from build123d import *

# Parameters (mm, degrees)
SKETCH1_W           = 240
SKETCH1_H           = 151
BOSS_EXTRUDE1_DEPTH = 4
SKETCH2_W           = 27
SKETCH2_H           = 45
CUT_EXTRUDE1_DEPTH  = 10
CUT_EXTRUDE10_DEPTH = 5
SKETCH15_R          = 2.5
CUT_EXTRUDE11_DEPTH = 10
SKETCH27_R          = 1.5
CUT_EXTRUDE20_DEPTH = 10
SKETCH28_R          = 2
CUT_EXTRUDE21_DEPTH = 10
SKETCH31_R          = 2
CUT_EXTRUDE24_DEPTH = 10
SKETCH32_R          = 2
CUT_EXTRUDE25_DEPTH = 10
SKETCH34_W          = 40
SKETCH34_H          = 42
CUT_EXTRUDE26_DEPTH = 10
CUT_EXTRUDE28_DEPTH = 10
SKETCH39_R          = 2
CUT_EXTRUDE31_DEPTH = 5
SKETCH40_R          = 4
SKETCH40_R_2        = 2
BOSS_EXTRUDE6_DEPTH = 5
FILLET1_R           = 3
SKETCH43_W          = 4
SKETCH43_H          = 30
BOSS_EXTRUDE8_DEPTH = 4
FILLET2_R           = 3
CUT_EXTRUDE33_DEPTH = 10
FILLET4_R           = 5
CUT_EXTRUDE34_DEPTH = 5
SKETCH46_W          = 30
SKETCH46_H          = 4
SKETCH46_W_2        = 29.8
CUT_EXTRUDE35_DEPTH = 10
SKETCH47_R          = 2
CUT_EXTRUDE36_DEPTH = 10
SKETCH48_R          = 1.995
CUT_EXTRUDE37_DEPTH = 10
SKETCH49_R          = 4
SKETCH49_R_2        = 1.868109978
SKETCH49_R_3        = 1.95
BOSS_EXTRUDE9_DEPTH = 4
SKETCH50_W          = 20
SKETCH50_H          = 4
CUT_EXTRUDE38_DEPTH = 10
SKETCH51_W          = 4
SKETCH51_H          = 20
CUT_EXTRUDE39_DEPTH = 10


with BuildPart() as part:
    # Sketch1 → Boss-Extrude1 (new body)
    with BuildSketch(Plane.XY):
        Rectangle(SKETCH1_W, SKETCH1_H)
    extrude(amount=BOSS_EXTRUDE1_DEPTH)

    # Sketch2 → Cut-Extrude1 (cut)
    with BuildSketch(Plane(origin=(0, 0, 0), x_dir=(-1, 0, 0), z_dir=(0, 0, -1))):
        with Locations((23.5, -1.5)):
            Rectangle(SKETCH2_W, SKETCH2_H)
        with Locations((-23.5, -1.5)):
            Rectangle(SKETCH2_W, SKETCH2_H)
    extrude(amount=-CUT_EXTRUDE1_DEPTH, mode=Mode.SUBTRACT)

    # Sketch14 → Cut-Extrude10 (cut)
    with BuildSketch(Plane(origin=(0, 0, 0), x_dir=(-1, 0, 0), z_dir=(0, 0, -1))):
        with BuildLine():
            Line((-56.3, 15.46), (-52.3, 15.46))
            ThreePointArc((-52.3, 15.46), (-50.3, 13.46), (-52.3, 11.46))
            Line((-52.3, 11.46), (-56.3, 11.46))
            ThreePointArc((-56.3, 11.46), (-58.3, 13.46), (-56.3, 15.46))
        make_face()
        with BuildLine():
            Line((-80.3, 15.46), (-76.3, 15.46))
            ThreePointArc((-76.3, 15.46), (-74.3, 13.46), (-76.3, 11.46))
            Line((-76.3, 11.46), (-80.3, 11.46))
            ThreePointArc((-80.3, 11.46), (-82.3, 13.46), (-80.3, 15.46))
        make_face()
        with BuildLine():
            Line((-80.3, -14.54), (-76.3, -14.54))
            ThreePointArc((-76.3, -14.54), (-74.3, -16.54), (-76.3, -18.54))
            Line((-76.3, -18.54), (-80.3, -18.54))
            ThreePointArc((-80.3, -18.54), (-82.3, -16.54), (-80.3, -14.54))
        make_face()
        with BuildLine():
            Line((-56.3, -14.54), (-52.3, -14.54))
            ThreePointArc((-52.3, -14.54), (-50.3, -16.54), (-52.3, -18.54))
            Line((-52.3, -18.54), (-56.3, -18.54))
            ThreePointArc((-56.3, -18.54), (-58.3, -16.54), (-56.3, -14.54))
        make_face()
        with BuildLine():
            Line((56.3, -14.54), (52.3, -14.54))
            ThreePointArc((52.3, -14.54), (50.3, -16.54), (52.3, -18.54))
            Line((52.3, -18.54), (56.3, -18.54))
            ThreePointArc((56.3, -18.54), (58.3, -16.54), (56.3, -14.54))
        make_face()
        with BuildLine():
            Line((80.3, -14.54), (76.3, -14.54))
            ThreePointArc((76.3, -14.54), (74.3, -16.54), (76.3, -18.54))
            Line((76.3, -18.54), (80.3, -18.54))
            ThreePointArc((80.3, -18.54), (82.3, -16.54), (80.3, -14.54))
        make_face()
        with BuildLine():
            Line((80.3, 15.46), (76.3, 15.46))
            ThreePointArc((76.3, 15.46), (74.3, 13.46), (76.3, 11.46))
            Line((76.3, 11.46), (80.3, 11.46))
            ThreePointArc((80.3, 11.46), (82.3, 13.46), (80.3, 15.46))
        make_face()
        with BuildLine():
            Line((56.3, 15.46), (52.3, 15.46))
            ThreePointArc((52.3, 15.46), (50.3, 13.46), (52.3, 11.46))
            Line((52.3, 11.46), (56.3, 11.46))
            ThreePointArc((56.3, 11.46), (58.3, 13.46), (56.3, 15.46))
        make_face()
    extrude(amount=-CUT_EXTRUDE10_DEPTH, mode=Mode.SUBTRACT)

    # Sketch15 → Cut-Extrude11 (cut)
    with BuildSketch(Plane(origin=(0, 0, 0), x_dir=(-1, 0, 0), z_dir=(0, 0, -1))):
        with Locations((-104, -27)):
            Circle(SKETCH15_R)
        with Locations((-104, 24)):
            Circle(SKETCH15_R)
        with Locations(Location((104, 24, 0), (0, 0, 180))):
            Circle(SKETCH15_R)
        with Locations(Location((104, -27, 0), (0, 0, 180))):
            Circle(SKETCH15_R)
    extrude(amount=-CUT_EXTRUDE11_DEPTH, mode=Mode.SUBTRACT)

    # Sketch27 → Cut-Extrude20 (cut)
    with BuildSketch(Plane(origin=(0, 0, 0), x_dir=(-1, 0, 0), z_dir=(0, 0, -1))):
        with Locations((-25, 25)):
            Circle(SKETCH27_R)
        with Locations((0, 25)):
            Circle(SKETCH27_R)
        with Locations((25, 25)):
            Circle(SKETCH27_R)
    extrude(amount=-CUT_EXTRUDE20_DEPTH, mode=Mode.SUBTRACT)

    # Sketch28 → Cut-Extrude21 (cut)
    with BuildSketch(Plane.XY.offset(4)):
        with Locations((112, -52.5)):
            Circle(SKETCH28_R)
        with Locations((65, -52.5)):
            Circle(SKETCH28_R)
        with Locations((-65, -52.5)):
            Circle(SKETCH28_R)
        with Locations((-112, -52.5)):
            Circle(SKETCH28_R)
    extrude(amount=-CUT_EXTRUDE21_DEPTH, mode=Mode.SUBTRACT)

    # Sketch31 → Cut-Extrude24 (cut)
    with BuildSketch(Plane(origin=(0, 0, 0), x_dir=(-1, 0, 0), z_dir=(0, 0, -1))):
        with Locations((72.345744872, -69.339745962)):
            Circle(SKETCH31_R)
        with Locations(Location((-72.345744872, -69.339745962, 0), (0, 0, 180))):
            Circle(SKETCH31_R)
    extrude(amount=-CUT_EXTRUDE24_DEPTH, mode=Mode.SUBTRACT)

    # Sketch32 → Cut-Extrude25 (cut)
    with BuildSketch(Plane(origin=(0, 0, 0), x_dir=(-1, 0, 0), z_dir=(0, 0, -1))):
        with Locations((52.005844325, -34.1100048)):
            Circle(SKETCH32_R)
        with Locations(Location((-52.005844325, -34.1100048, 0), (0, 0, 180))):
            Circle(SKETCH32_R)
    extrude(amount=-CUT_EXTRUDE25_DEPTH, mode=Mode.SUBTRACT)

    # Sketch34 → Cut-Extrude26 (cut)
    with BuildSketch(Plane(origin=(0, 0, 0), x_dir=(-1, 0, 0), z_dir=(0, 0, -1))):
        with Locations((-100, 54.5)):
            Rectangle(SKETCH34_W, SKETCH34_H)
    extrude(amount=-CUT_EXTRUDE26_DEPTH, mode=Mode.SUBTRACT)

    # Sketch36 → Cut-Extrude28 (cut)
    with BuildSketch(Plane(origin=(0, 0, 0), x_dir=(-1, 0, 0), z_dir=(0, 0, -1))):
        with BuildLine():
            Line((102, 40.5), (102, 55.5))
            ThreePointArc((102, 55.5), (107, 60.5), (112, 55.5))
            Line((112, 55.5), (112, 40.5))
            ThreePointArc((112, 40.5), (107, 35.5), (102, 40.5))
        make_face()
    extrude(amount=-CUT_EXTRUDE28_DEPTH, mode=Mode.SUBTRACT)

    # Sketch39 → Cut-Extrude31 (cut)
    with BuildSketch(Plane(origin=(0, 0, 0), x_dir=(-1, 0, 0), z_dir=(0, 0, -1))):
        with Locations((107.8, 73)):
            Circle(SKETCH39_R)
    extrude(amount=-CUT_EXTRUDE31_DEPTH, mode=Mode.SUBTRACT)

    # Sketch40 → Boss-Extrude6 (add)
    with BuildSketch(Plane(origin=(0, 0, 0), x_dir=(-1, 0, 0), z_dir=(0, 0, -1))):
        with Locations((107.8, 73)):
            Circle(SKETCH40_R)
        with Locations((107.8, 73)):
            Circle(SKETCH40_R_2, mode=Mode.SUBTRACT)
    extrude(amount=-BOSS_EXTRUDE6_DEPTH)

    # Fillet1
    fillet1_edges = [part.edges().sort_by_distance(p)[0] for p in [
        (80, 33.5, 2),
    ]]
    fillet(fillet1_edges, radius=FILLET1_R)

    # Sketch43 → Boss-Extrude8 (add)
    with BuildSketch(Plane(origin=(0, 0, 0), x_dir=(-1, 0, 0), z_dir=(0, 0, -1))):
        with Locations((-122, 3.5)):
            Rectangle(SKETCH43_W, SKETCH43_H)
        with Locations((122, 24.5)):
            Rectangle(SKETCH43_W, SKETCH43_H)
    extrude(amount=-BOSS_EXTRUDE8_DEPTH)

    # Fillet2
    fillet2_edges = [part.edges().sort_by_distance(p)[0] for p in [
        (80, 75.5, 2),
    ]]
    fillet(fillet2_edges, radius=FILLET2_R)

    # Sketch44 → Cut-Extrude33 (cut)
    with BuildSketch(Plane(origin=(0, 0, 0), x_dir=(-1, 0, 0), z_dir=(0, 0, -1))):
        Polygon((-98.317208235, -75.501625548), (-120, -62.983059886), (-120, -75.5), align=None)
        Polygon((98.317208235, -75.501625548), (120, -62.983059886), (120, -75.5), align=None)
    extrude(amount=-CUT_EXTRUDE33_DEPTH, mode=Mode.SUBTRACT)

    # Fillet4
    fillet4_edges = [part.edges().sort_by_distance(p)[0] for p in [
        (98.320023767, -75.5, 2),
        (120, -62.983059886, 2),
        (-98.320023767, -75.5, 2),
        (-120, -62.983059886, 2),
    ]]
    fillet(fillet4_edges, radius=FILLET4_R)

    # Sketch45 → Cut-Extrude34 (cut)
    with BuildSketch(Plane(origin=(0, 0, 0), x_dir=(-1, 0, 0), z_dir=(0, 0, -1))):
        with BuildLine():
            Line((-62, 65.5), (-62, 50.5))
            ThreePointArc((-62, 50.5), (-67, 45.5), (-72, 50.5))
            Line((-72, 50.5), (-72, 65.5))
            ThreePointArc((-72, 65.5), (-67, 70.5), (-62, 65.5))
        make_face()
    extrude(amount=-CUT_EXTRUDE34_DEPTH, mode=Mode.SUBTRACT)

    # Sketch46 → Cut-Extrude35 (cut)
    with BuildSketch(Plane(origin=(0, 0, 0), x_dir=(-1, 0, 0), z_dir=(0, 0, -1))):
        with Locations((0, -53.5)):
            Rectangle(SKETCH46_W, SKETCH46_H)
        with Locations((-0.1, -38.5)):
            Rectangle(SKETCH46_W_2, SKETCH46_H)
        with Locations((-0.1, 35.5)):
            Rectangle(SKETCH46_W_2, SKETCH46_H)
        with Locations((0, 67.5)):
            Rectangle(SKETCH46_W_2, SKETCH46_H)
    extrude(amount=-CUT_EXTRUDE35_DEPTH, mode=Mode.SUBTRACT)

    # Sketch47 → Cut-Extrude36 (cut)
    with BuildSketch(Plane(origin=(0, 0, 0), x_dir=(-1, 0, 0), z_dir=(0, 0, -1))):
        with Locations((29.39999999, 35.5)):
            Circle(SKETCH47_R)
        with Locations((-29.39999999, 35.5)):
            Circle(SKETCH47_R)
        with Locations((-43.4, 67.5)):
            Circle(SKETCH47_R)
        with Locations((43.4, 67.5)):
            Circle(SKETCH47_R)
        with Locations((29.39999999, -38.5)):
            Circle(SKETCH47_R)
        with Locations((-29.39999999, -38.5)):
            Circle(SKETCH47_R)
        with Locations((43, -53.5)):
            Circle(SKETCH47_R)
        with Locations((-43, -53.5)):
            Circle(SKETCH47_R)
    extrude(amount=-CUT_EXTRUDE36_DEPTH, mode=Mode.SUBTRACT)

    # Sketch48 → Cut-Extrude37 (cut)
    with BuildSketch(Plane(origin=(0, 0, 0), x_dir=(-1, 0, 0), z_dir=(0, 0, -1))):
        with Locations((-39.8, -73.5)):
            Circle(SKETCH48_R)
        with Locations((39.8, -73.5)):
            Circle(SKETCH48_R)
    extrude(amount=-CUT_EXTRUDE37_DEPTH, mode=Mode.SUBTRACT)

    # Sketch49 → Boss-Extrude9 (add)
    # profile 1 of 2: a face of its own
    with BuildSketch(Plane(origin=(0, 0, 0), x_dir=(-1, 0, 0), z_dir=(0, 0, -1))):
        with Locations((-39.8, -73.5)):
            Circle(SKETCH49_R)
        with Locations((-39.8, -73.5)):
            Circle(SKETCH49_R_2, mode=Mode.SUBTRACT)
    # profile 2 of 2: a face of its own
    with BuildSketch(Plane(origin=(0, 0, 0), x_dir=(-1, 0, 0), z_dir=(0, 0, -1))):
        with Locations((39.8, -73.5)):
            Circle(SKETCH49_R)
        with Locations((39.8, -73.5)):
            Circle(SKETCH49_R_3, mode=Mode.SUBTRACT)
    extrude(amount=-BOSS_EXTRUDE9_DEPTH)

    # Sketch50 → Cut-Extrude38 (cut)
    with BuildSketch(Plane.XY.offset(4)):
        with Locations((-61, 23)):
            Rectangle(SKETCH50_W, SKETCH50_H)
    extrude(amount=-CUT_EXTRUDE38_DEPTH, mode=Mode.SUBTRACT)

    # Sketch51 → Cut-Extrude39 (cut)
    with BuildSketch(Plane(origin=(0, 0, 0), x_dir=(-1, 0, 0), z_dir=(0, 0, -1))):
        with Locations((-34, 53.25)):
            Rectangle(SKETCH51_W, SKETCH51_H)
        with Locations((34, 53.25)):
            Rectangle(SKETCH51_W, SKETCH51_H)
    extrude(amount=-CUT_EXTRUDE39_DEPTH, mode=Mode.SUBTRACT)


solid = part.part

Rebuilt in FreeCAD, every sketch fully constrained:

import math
import FreeCAD as App
import Part
import Sketcher
Q = App.Units.Quantity


def edges_at(feature, points):
    """Names of the edges that pass closest to the given points."""
    edges = feature.Shape.Edges
    near = lambda p: min(range(len(edges)), key=lambda i: edges[i].distToShape(Part.Vertex(*p))[0])
    return sorted({f"Edge{near(p) + 1}" for p in points})


def add_polygon(sketch, points):
    """Adds a closed chain of lines whose ends are joined by coincident constraints."""
    first, n = sketch.GeometryCount, len(points)
    for a, b in zip(points, points[1:] + points[:1]):
        sketch.addGeometry(Part.LineSegment(App.Vector(*a, 0), App.Vector(*b, 0)), False)
    for i in range(n):
        sketch.addConstraint(Sketcher.Constraint("Coincident", first + i, 2, first + (i + 1) % n, 1))

doc = App.newDocument("Part")
body = doc.addObject("PartDesign::Body", "Body")

sketch1 = doc.addObject("Sketcher::SketchObject", "Sketch")
body.addObject(sketch1)
sketch1.AttachmentSupport = (doc.XY_Plane, [""])
sketch1.MapMode = "FlatFace"
add_polygon(sketch1, [(-120, 76), (-120, -76), (120, -76), (120, 76)])
sketch1.addConstraint(Sketcher.Constraint("Vertical", 0))
sketch1.addConstraint(Sketcher.Constraint("Horizontal", 1))
sketch1.addConstraint(Sketcher.Constraint("Vertical", 2))
sketch1.addConstraint(Sketcher.Constraint("Horizontal", 3))
sketch1.addConstraint(Sketcher.Constraint("Symmetric", 0, 2, 2, 2, -1, 1))
sketch1.addConstraint(Sketcher.Constraint("DistanceX", 1, 1, 1, 2, 240.0))
sketch1.addConstraint(Sketcher.Constraint("DistanceY", 0, 2, 0, 1, 151.0))
pad1 = doc.addObject("PartDesign::Pad", "Pad")
body.addObject(pad1)
pad1.Profile = sketch1
pad1.Length = 4

sketch2 = doc.addObject("Sketcher::SketchObject", "Sketch001")
body.addObject(sketch2)
sketch2.AttachmentSupport = (doc.XY_Plane, [""])
sketch2.MapMode = "FlatFace"
add_polygon(sketch2, [(-10, 21), (-10, -24), (-37, -24), (-37, 21)])
add_polygon(sketch2, [(37, 21), (37, -24), (10, -24), (10, 21)])
sketch2.addConstraint(Sketcher.Constraint("Vertical", 0))
sketch2.addConstraint(Sketcher.Constraint("Horizontal", 1))
sketch2.addConstraint(Sketcher.Constraint("Vertical", 2))
sketch2.addConstraint(Sketcher.Constraint("Horizontal", 3))
sketch2.addConstraint(Sketcher.Constraint("Vertical", 4))
sketch2.addConstraint(Sketcher.Constraint("Horizontal", 5))
sketch2.addConstraint(Sketcher.Constraint("Vertical", 6))
sketch2.addConstraint(Sketcher.Constraint("Horizontal", 7))
sketch2.addConstraint(Sketcher.Constraint("Symmetric", 1, 2, 4, 2, -2))
sketch2.addConstraint(Sketcher.Constraint("Symmetric", 3, 2, 6, 2, -2))
sketch2.addConstraint(Sketcher.Constraint("DistanceX", 1, 2, 1, 1, 27.0))
sketch2.addConstraint(Sketcher.Constraint("DistanceY", 0, 2, 0, 1, 45.0))
sketch2.addConstraint(Sketcher.Constraint("DistanceX", 0, 2, -1, 1, 10.0))
sketch2.addConstraint(Sketcher.Constraint("DistanceY", 0, 2, -1, 1, 24.0))
pocket1 = doc.addObject("PartDesign::Pocket", "Pocket")
body.addObject(pocket1)
pocket1.Profile = sketch2
pocket1.Length = 10
pocket1.Reversed = True

sketch3 = doc.addObject("Sketcher::SketchObject", "Sketch002")
body.addObject(sketch3)
sketch3.AttachmentSupport = (doc.XY_Plane, [""])
sketch3.MapMode = "FlatFace"
sketch3.addGeometry(Part.LineSegment(App.Vector(52.3, 15.5, 0), App.Vector(56.3, 15.5, 0)), False)
sketch3.addGeometry(Part.ArcOfCircle(Part.Circle(App.Vector(56.3, 13.5, 0), App.Vector(0, 0, 1), 2), math.radians(-90), math.radians(90)), False)
sketch3.addGeometry(Part.LineSegment(App.Vector(56.3, 11.5, 0), App.Vector(52.3, 11.5, 0)), False)
sketch3.addGeometry(Part.ArcOfCircle(Part.Circle(App.Vector(52.3, 13.5, 0), App.Vector(0, 0, 1), 2), math.radians(90), math.radians(270)), False)
sketch3.addGeometry(Part.LineSegment(App.Vector(76.3, 15.5, 0), App.Vector(80.3, 15.5, 0)), False)
sketch3.addGeometry(Part.ArcOfCircle(Part.Circle(App.Vector(80.3, 13.5, 0), App.Vector(0, 0, 1), 2), math.radians(-90), math.radians(90)), False)
sketch3.addGeometry(Part.LineSegment(App.Vector(80.3, 11.5, 0), App.Vector(76.3, 11.5, 0)), False)
sketch3.addGeometry(Part.ArcOfCircle(Part.Circle(App.Vector(76.3, 13.5, 0), App.Vector(0, 0, 1), 2), math.radians(90), math.radians(270)), False)
sketch3.addGeometry(Part.LineSegment(App.Vector(76.3, -14.5, 0), App.Vector(80.3, -14.5, 0)), False)
sketch3.addGeometry(Part.ArcOfCircle(Part.Circle(App.Vector(80.3, -16.5, 0), App.Vector(0, 0, 1), 2), math.radians(-90), math.radians(90)), False)
sketch3.addGeometry(Part.LineSegment(App.Vector(80.3, -18.5, 0), App.Vector(76.3, -18.5, 0)), False)
sketch3.addGeometry(Part.ArcOfCircle(Part.Circle(App.Vector(76.3, -16.5, 0), App.Vector(0, 0, 1), 2), math.radians(90), math.radians(270)), False)
sketch3.addGeometry(Part.LineSegment(App.Vector(52.3, -14.5, 0), App.Vector(56.3, -14.5, 0)), False)
sketch3.addGeometry(Part.ArcOfCircle(Part.Circle(App.Vector(56.3, -16.5, 0), App.Vector(0, 0, 1), 2), math.radians(-90), math.radians(90)), False)
sketch3.addGeometry(Part.LineSegment(App.Vector(56.3, -18.5, 0), App.Vector(52.3, -18.5, 0)), False)
sketch3.addGeometry(Part.ArcOfCircle(Part.Circle(App.Vector(52.3, -16.5, 0), App.Vector(0, 0, 1), 2), math.radians(90), math.radians(270)), False)
sketch3.addGeometry(Part.LineSegment(App.Vector(-56.3, -14.5, 0), App.Vector(-52.3, -14.5, 0)), False)
sketch3.addGeometry(Part.ArcOfCircle(Part.Circle(App.Vector(-52.3, -16.5, 0), App.Vector(0, 0, 1), 2), math.radians(-90), math.radians(90)), False)
sketch3.addGeometry(Part.LineSegment(App.Vector(-52.3, -18.5, 0), App.Vector(-56.3, -18.5, 0)), False)
sketch3.addGeometry(Part.ArcOfCircle(Part.Circle(App.Vector(-56.3, -16.5, 0), App.Vector(0, 0, 1), 2), math.radians(90), math.radians(270)), False)
sketch3.addGeometry(Part.LineSegment(App.Vector(-80.3, -14.5, 0), App.Vector(-76.3, -14.5, 0)), False)
sketch3.addGeometry(Part.ArcOfCircle(Part.Circle(App.Vector(-76.3, -16.5, 0), App.Vector(0, 0, 1), 2), math.radians(-90), math.radians(90)), False)
sketch3.addGeometry(Part.LineSegment(App.Vector(-76.3, -18.5, 0), App.Vector(-80.3, -18.5, 0)), False)
sketch3.addGeometry(Part.ArcOfCircle(Part.Circle(App.Vector(-80.3, -16.5, 0), App.Vector(0, 0, 1), 2), math.radians(90), math.radians(270)), False)
sketch3.addGeometry(Part.LineSegment(App.Vector(-80.3, 15.5, 0), App.Vector(-76.3, 15.5, 0)), False)
sketch3.addGeometry(Part.ArcOfCircle(Part.Circle(App.Vector(-76.3, 13.5, 0), App.Vector(0, 0, 1), 2), math.radians(-90), math.radians(90)), False)
sketch3.addGeometry(Part.LineSegment(App.Vector(-76.3, 11.5, 0), App.Vector(-80.3, 11.5, 0)), False)
sketch3.addGeometry(Part.ArcOfCircle(Part.Circle(App.Vector(-80.3, 13.5, 0), App.Vector(0, 0, 1), 2), math.radians(90), math.radians(270)), False)
sketch3.addGeometry(Part.LineSegment(App.Vector(-56.3, 15.5, 0), App.Vector(-52.3, 15.5, 0)), False)
sketch3.addGeometry(Part.ArcOfCircle(Part.Circle(App.Vector(-52.3, 13.5, 0), App.Vector(0, 0, 1), 2), math.radians(-90), math.radians(90)), False)
sketch3.addGeometry(Part.LineSegment(App.Vector(-52.3, 11.5, 0), App.Vector(-56.3, 11.5, 0)), False)
sketch3.addGeometry(Part.ArcOfCircle(Part.Circle(App.Vector(-56.3, 13.5, 0), App.Vector(0, 0, 1), 2), math.radians(90), math.radians(270)), False)
sketch3.addConstraint(Sketcher.Constraint("Tangent", 0, 2, 1, 2))
sketch3.addConstraint(Sketcher.Constraint("Tangent", 1, 1, 2, 1))
sketch3.addConstraint(Sketcher.Constraint("Tangent", 2, 2, 3, 2))
sketch3.addConstraint(Sketcher.Constraint("Tangent", 3, 1, 0, 1))
sketch3.addConstraint(Sketcher.Constraint("Tangent", 4, 2, 5, 2))
sketch3.addConstraint(Sketcher.Constraint("Tangent", 5, 1, 6, 1))
sketch3.addConstraint(Sketcher.Constraint("Tangent", 6, 2, 7, 2))
sketch3.addConstraint(Sketcher.Constraint("Tangent", 7, 1, 4, 1))
sketch3.addConstraint(Sketcher.Constraint("Tangent", 8, 2, 9, 2))
sketch3.addConstraint(Sketcher.Constraint("Tangent", 9, 1, 10, 1))
sketch3.addConstraint(Sketcher.Constraint("Tangent", 10, 2, 11, 2))
sketch3.addConstraint(Sketcher.Constraint("Tangent", 11, 1, 8, 1))
sketch3.addConstraint(Sketcher.Constraint("Tangent", 12, 2, 13, 2))
sketch3.addConstraint(Sketcher.Constraint("Tangent", 13, 1, 14, 1))
sketch3.addConstraint(Sketcher.Constraint("Tangent", 14, 2, 15, 2))
sketch3.addConstraint(Sketcher.Constraint("Tangent", 15, 1, 12, 1))
sketch3.addConstraint(Sketcher.Constraint("Tangent", 16, 2, 17, 2))
sketch3.addConstraint(Sketcher.Constraint("Tangent", 17, 1, 18, 1))
sketch3.addConstraint(Sketcher.Constraint("Tangent", 18, 2, 19, 2))
sketch3.addConstraint(Sketcher.Constraint("Tangent", 19, 1, 16, 1))
sketch3.addConstraint(Sketcher.Constraint("Tangent", 20, 2, 21, 2))
sketch3.addConstraint(Sketcher.Constraint("Tangent", 21, 1, 22, 1))
sketch3.addConstraint(Sketcher.Constraint("Tangent", 22, 2, 23, 2))
sketch3.addConstraint(Sketcher.Constraint("Tangent", 23, 1, 20, 1))
sketch3.addConstraint(Sketcher.Constraint("Tangent", 24, 2, 25, 2))
sketch3.addConstraint(Sketcher.Constraint("Tangent", 25, 1, 26, 1))
sketch3.addConstraint(Sketcher.Constraint("Tangent", 26, 2, 27, 2))
sketch3.addConstraint(Sketcher.Constraint("Tangent", 27, 1, 24, 1))
sketch3.addConstraint(Sketcher.Constraint("Tangent", 28, 2, 29, 2))
sketch3.addConstraint(Sketcher.Constraint("Tangent", 29, 1, 30, 1))
sketch3.addConstraint(Sketcher.Constraint("Tangent", 30, 2, 31, 2))
sketch3.addConstraint(Sketcher.Constraint("Tangent", 31, 1, 28, 1))
sketch3.addConstraint(Sketcher.Constraint("Horizontal", 0))
sketch3.addConstraint(Sketcher.Constraint("Horizontal", 2))
sketch3.addConstraint(Sketcher.Constraint("Horizontal", 4))
sketch3.addConstraint(Sketcher.Constraint("Horizontal", 6))
sketch3.addConstraint(Sketcher.Constraint("Horizontal", 8))
sketch3.addConstraint(Sketcher.Constraint("Horizontal", 10))
sketch3.addConstraint(Sketcher.Constraint("Horizontal", 12))
sketch3.addConstraint(Sketcher.Constraint("Horizontal", 14))
sketch3.addConstraint(Sketcher.Constraint("Horizontal", 16))
sketch3.addConstraint(Sketcher.Constraint("Horizontal", 18))
sketch3.addConstraint(Sketcher.Constraint("Horizontal", 20))
sketch3.addConstraint(Sketcher.Constraint("Horizontal", 22))
sketch3.addConstraint(Sketcher.Constraint("Horizontal", 24))
sketch3.addConstraint(Sketcher.Constraint("Horizontal", 26))
sketch3.addConstraint(Sketcher.Constraint("Horizontal", 28))
sketch3.addConstraint(Sketcher.Constraint("Horizontal", 30))
sketch3.addConstraint(Sketcher.Constraint("Equal", 3, 5))
sketch3.addConstraint(Sketcher.Constraint("Equal", 7, 9))
sketch3.addConstraint(Sketcher.Constraint("Equal", 11, 13))
sketch3.addConstraint(Sketcher.Constraint("Equal", 15, 17))
sketch3.addConstraint(Sketcher.Constraint("Equal", 19, 21))
sketch3.addConstraint(Sketcher.Constraint("Equal", 23, 25))
sketch3.addConstraint(Sketcher.Constraint("Equal", 27, 29))
sketch3.addConstraint(Sketcher.Constraint("Symmetric", 15, 3, 17, 3, -2))
sketch3.addConstraint(Sketcher.Constraint("Symmetric", 11, 3, 21, 3, -2))
sketch3.addConstraint(Sketcher.Constraint("Symmetric", 7, 3, 25, 3, -2))
sketch3.addConstraint(Sketcher.Constraint("Symmetric", 3, 3, 29, 3, -2))
sketch3.addConstraint(Sketcher.Constraint("Horizontal", 3, 3, 5, 3))
sketch3.addConstraint(Sketcher.Constraint("Horizontal", 11, 3, 13, 3))
sketch3.addConstraint(Sketcher.Constraint("Vertical", 5, 3, 9, 3))
sketch3.addConstraint(Sketcher.Constraint("Vertical", 7, 3, 11, 3))
sketch3.addConstraint(Sketcher.Constraint("Vertical", 1, 3, 13, 3))
sketch3.addConstraint(Sketcher.Constraint("Vertical", 3, 3, 15, 3))
sketch3.addConstraint(Sketcher.Constraint("Vertical", 23, 3, 27, 3))
sketch3.addConstraint(Sketcher.Constraint("Vertical", 19, 3, 31, 3))
sketch3.addConstraint(Sketcher.Constraint("Equal", 2, 4))
sketch3.addConstraint(Sketcher.Constraint("Equal", 14, 16))
sketch3.addConstraint(Sketcher.Constraint("Equal", 18, 20))
sketch3.addConstraint(Sketcher.Constraint("Radius", 1, 2.0))
sketch3.addConstraint(Sketcher.Constraint("DistanceX", 0, 1, 0, 2, 4.0))
sketch3.addConstraint(Sketcher.Constraint("DistanceX", 1, 3, 5, 3, 24.0))
sketch3.addConstraint(Sketcher.Constraint("DistanceY", 9, 3, 5, 3, 30.0))
sketch3.addConstraint(Sketcher.Constraint("DistanceX", -1, 1, 1, 3, 56.3))
sketch3.addConstraint(Sketcher.Constraint("DistanceY", -1, 1, 1, 3, 13.46))
pocket2 = doc.addObject("PartDesign::Pocket", "Pocket001")
body.addObject(pocket2)
pocket2.Profile = sketch3
pocket2.Length = 5
pocket2.Reversed = True

sketch4 = doc.addObject("Sketcher::SketchObject", "Sketch003")
body.addObject(sketch4)
sketch4.AttachmentSupport = (doc.XY_Plane, [""])
sketch4.MapMode = "FlatFace"
sketch4.addGeometry(Part.Circle(App.Vector(104, -27, 0), App.Vector(0, 0, 1), 2.5), False)
sketch4.addGeometry(Part.Circle(App.Vector(104, 24, 0), App.Vector(0, 0, 1), 2.5), False)
sketch4.addGeometry(Part.Circle(App.Vector(-104, 24, 0), App.Vector(0, 0, 1), 2.5), False)
sketch4.addGeometry(Part.Circle(App.Vector(-104, -27, 0), App.Vector(0, 0, 1), 2.5), False)
sketch4.addConstraint(Sketcher.Constraint("Equal", 0, 1))
sketch4.addConstraint(Sketcher.Constraint("Equal", 1, 2))
sketch4.addConstraint(Sketcher.Constraint("Equal", 2, 3))
sketch4.addConstraint(Sketcher.Constraint("Symmetric", 1, 3, 2, 3, -2))
sketch4.addConstraint(Sketcher.Constraint("Symmetric", 0, 3, 3, 3, -2))
sketch4.addConstraint(Sketcher.Constraint("Vertical", 0, 3, 1, 3))
sketch4.addConstraint(Sketcher.Constraint("Diameter", 0, 5.0))
sketch4.addConstraint(Sketcher.Constraint("DistanceX", -1, 1, 0, 3, 104.0))
sketch4.addConstraint(Sketcher.Constraint("DistanceY", 0, 3, -1, 1, 27.0))
sketch4.addConstraint(Sketcher.Constraint("DistanceY", -1, 1, 1, 3, 24.0))
pocket3 = doc.addObject("PartDesign::Pocket", "Pocket002")
body.addObject(pocket3)
pocket3.Profile = sketch4
pocket3.Length = 10
pocket3.Reversed = True

sketch5 = doc.addObject("Sketcher::SketchObject", "Sketch004")
body.addObject(sketch5)
sketch5.AttachmentSupport = (doc.XY_Plane, [""])
sketch5.MapMode = "FlatFace"
sketch5.addGeometry(Part.Circle(App.Vector(25, 25, 0), App.Vector(0, 0, 1), 1.5), False)
sketch5.addGeometry(Part.Circle(App.Vector(0, 25, 0), App.Vector(0, 0, 1), 1.5), False)
sketch5.addGeometry(Part.Circle(App.Vector(-25, 25, 0), App.Vector(0, 0, 1), 1.5), False)
sketch5.addConstraint(Sketcher.Constraint("Equal", 0, 1))
sketch5.addConstraint(Sketcher.Constraint("Equal", 1, 2))
sketch5.addConstraint(Sketcher.Constraint("Symmetric", 0, 3, 2, 3, -2))
sketch5.addConstraint(Sketcher.Constraint("PointOnObject", 1, 3, -2))
sketch5.addConstraint(Sketcher.Constraint("Horizontal", 0, 3, 1, 3))
sketch5.addConstraint(Sketcher.Constraint("Diameter", 0, 3.0))
sketch5.addConstraint(Sketcher.Constraint("DistanceX", -1, 1, 0, 3, 25.0))
sketch5.addConstraint(Sketcher.Constraint("DistanceY", -1, 1, 0, 3, 25.0))
pocket4 = doc.addObject("PartDesign::Pocket", "Pocket003")
body.addObject(pocket4)
pocket4.Profile = sketch5
pocket4.Length = 10
pocket4.Reversed = True

sketch6 = doc.addObject("Sketcher::SketchObject", "Sketch005")
body.addObject(sketch6)
sketch6.AttachmentSupport = (doc.XY_Plane, [""])
sketch6.MapMode = "FlatFace"
sketch6.AttachmentOffset = App.Placement(App.Vector(0, 0, 4), App.Rotation())
sketch6.addGeometry(Part.Circle(App.Vector(112, -52.5, 0), App.Vector(0, 0, 1), 2), False)
sketch6.addGeometry(Part.Circle(App.Vector(65, -52.5, 0), App.Vector(0, 0, 1), 2), False)
sketch6.addGeometry(Part.Circle(App.Vector(-65, -52.5, 0), App.Vector(0, 0, 1), 2), False)
sketch6.addGeometry(Part.Circle(App.Vector(-112, -52.5, 0), App.Vector(0, 0, 1), 2), False)
sketch6.addConstraint(Sketcher.Constraint("Equal", 0, 1))
sketch6.addConstraint(Sketcher.Constraint("Equal", 1, 2))
sketch6.addConstraint(Sketcher.Constraint("Equal", 2, 3))
sketch6.addConstraint(Sketcher.Constraint("Symmetric", 1, 3, 2, 3, -2))
sketch6.addConstraint(Sketcher.Constraint("Symmetric", 0, 3, 3, 3, -2))
sketch6.addConstraint(Sketcher.Constraint("Horizontal", 0, 3, 1, 3))
sketch6.addConstraint(Sketcher.Constraint("Diameter", 0, 4.0))
sketch6.addConstraint(Sketcher.Constraint("DistanceX", -1, 1, 0, 3, 112.0))
sketch6.addConstraint(Sketcher.Constraint("DistanceX", -1, 1, 1, 3, 65.0))
sketch6.addConstraint(Sketcher.Constraint("DistanceY", 0, 3, -1, 1, 52.5))
pocket5 = doc.addObject("PartDesign::Pocket", "Pocket004")
body.addObject(pocket5)
pocket5.Profile = sketch6
pocket5.Length = 10

sketch7 = doc.addObject("Sketcher::SketchObject", "Sketch006")
body.addObject(sketch7)
sketch7.AttachmentSupport = (doc.XY_Plane, [""])
sketch7.MapMode = "FlatFace"
sketch7.addGeometry(Part.Circle(App.Vector(-72.3, -69.3, 0), App.Vector(0, 0, 1), 2), False)
sketch7.addGeometry(Part.Circle(App.Vector(72.3, -69.3, 0), App.Vector(0, 0, 1), 2), False)
sketch7.addConstraint(Sketcher.Constraint("Equal", 0, 1))
sketch7.addConstraint(Sketcher.Constraint("Symmetric", 0, 3, 1, 3, -2))
sketch7.addConstraint(Sketcher.Constraint("Diameter", 0, 4.0))
sketch7.addConstraint(Sketcher.Constraint("DistanceX", 0, 3, 1, 3, 144.69149))
sketch7.addConstraint(Sketcher.Constraint("DistanceY", 0, 3, -1, 1, 69.339746))
pocket6 = doc.addObject("PartDesign::Pocket", "Pocket005")
body.addObject(pocket6)
pocket6.Profile = sketch7
pocket6.Length = 10
pocket6.Reversed = True

sketch8 = doc.addObject("Sketcher::SketchObject", "Sketch007")
body.addObject(sketch8)
sketch8.AttachmentSupport = (doc.XY_Plane, [""])
sketch8.MapMode = "FlatFace"
sketch8.addGeometry(Part.Circle(App.Vector(-52, -34.1, 0), App.Vector(0, 0, 1), 2), False)
sketch8.addGeometry(Part.Circle(App.Vector(52, -34.1, 0), App.Vector(0, 0, 1), 2), False)
sketch8.addConstraint(Sketcher.Constraint("Equal", 0, 1))
sketch8.addConstraint(Sketcher.Constraint("Symmetric", 0, 3, 1, 3, -2))
sketch8.addConstraint(Sketcher.Constraint("Diameter", 0, 4.0))
sketch8.addConstraint(Sketcher.Constraint("DistanceX", 0, 3, 1, 3, 104.011689))
sketch8.addConstraint(Sketcher.Constraint("DistanceY", 0, 3, -1, 1, 34.110005))
pocket7 = doc.addObject("PartDesign::Pocket", "Pocket006")
body.addObject(pocket7)
pocket7.Profile = sketch8
pocket7.Length = 10
pocket7.Reversed = True

sketch9 = doc.addObject("Sketcher::SketchObject", "Sketch008")
body.addObject(sketch9)
sketch9.AttachmentSupport = (doc.XY_Plane, [""])
sketch9.MapMode = "FlatFace"
add_polygon(sketch9, [(120, 76), (120, 34), (80, 34), (80, 76)])
sketch9.addConstraint(Sketcher.Constraint("Vertical", 0))
sketch9.addConstraint(Sketcher.Constraint("Horizontal", 1))
sketch9.addConstraint(Sketcher.Constraint("Vertical", 2))
sketch9.addConstraint(Sketcher.Constraint("Horizontal", 3))
sketch9.addConstraint(Sketcher.Constraint("DistanceX", 1, 2, 1, 1, 40.0))
sketch9.addConstraint(Sketcher.Constraint("DistanceY", 0, 2, 0, 1, 42.0))
sketch9.addConstraint(Sketcher.Constraint("DistanceX", -1, 1, 0, 2, 120.0))
sketch9.addConstraint(Sketcher.Constraint("DistanceY", -1, 1, 0, 2, 33.5))
pocket8 = doc.addObject("PartDesign::Pocket", "Pocket007")
body.addObject(pocket8)
pocket8.Profile = sketch9
pocket8.Length = 10
pocket8.Reversed = True

sketch10 = doc.addObject("Sketcher::SketchObject", "Sketch009")
body.addObject(sketch10)
sketch10.AttachmentSupport = (doc.XY_Plane, [""])
sketch10.MapMode = "FlatFace"
sketch10.addGeometry(Part.LineSegment(App.Vector(-102, 56, 0), App.Vector(-102, 40, 0)), False)
sketch10.addGeometry(Part.ArcOfCircle(Part.Circle(App.Vector(-107, 40, 0), App.Vector(0, 0, 1), 5), math.radians(180), math.radians(360)), False)
sketch10.addGeometry(Part.LineSegment(App.Vector(-112, 40, 0), App.Vector(-112, 56, 0)), False)
sketch10.addGeometry(Part.ArcOfCircle(Part.Circle(App.Vector(-107, 56, 0), App.Vector(0, 0, 1), 5), math.radians(0), math.radians(180)), False)
sketch10.addConstraint(Sketcher.Constraint("Tangent", 0, 2, 1, 2))
sketch10.addConstraint(Sketcher.Constraint("Tangent", 1, 1, 2, 1))
sketch10.addConstraint(Sketcher.Constraint("Tangent", 2, 2, 3, 2))
sketch10.addConstraint(Sketcher.Constraint("Tangent", 3, 1, 0, 1))
sketch10.addConstraint(Sketcher.Constraint("Vertical", 0))
sketch10.addConstraint(Sketcher.Constraint("Vertical", 2))
sketch10.addConstraint(Sketcher.Constraint("Radius", 1, 5.0))
sketch10.addConstraint(Sketcher.Constraint("DistanceY", 0, 2, 0, 1, 15.0))
sketch10.addConstraint(Sketcher.Constraint("DistanceX", 1, 3, -1, 1, 107.0))
sketch10.addConstraint(Sketcher.Constraint("DistanceY", -1, 1, 1, 3, 40.5))
pocket9 = doc.addObject("PartDesign::Pocket", "Pocket008")
body.addObject(pocket9)
pocket9.Profile = sketch10
pocket9.Length = 10
pocket9.Reversed = True

sketch11 = doc.addObject("Sketcher::SketchObject", "Sketch010")
body.addObject(sketch11)
sketch11.AttachmentSupport = (doc.XY_Plane, [""])
sketch11.MapMode = "FlatFace"
sketch11.addGeometry(Part.Circle(App.Vector(-107.8, 73, 0), App.Vector(0, 0, 1), 2), False)
sketch11.addConstraint(Sketcher.Constraint("Diameter", 0, 4.0))
sketch11.addConstraint(Sketcher.Constraint("DistanceY", -1, 1, 0, 3, 73.0))
sketch11.addConstraint(Sketcher.Constraint("DistanceX", 0, 3, -1, 1, 107.8))
pocket10 = doc.addObject("PartDesign::Pocket", "Pocket009")
body.addObject(pocket10)
pocket10.Profile = sketch11
pocket10.Length = 5
pocket10.Reversed = True

sketch12 = doc.addObject("Sketcher::SketchObject", "Sketch011")
body.addObject(sketch12)
sketch12.AttachmentSupport = (doc.XY_Plane, [""])
sketch12.MapMode = "FlatFace"
sketch12.addGeometry(Part.Circle(App.Vector(-107.8, 73, 0), App.Vector(0, 0, 1), 4), False)
sketch12.addGeometry(Part.Circle(App.Vector(-107.8, 73, 0), App.Vector(0, 0, 1), 2), False)
sketch12.addConstraint(Sketcher.Constraint("Coincident", 1, 3, 0, 3))
sketch12.addConstraint(Sketcher.Constraint("Diameter", 0, 8.0))
sketch12.addConstraint(Sketcher.Constraint("Diameter", 1, 4.0))
sketch12.addConstraint(Sketcher.Constraint("DistanceY", -1, 1, 0, 3, 73.0))
sketch12.addConstraint(Sketcher.Constraint("DistanceX", 0, 3, -1, 1, 107.8))
pad2 = doc.addObject("PartDesign::Pad", "Pad001")
body.addObject(pad2)
pad2.Profile = sketch12
pad2.Length = 5
doc.recompute()

fillet = doc.addObject("PartDesign::Fillet", "Fillet")
body.addObject(fillet)
fillet.Base = (pad2, edges_at(pad2, [(80, 33.5, 2)]))
fillet.Radius = 3

sketch13 = doc.addObject("Sketcher::SketchObject", "Sketch012")
body.addObject(sketch13)
sketch13.AttachmentSupport = (doc.XY_Plane, [""])
sketch13.MapMode = "FlatFace"
add_polygon(sketch13, [(124, 18.5), (124, -11.5), (120, -11.5), (120, 18.5)])
add_polygon(sketch13, [(-120, 39.5), (-120, 9.5), (-124, 9.5), (-124, 39.5)])
sketch13.addConstraint(Sketcher.Constraint("Vertical", 0))
sketch13.addConstraint(Sketcher.Constraint("Horizontal", 1))
sketch13.addConstraint(Sketcher.Constraint("Vertical", 2))
sketch13.addConstraint(Sketcher.Constraint("Horizontal", 3))
sketch13.addConstraint(Sketcher.Constraint("Vertical", 4))
sketch13.addConstraint(Sketcher.Constraint("Horizontal", 5))
sketch13.addConstraint(Sketcher.Constraint("Vertical", 6))
sketch13.addConstraint(Sketcher.Constraint("Horizontal", 7))
sketch13.addConstraint(Sketcher.Constraint("Equal", 3, 5))
sketch13.addConstraint(Sketcher.Constraint("Equal", 2, 4))
sketch13.addConstraint(Sketcher.Constraint("DistanceX", 1, 2, 1, 1, 4.0))
sketch13.addConstraint(Sketcher.Constraint("DistanceY", 0, 2, 0, 1, 30.0))
sketch13.addConstraint(Sketcher.Constraint("DistanceX", -1, 1, 0, 2, 124.0))
sketch13.addConstraint(Sketcher.Constraint("DistanceX", 4, 2, -1, 1, 120.0))
sketch13.addConstraint(Sketcher.Constraint("DistanceY", 4, 2, 2, 2, 9.0))
sketch13.addConstraint(Sketcher.Constraint("DistanceY", 0, 2, -1, 1, 11.5))
pad3 = doc.addObject("PartDesign::Pad", "Pad002")
body.addObject(pad3)
pad3.Profile = sketch13
pad3.Length = 4
doc.recompute()

fillet2 = doc.addObject("PartDesign::Fillet", "Fillet001")
body.addObject(fillet2)
fillet2.Base = (pad3, edges_at(pad3, [(80, 75.5, 2)]))
fillet2.Radius = 3

sketch14 = doc.addObject("Sketcher::SketchObject", "Sketch013")
body.addObject(sketch14)
sketch14.AttachmentSupport = (doc.XY_Plane, [""])
sketch14.MapMode = "FlatFace"
add_polygon(sketch14, [(98, -76), (120, -63), (120, -76)])
add_polygon(sketch14, [(-120, -63), (-98, -76), (-120, -76)])
sketch14.addConstraint(Sketcher.Constraint("Vertical", 1))
sketch14.addConstraint(Sketcher.Constraint("Vertical", 5))
sketch14.addConstraint(Sketcher.Constraint("Symmetric", 2, 2, 3, 2, -2))
sketch14.addConstraint(Sketcher.Constraint("Symmetric", 1, 2, 4, 2, -2))
sketch14.addConstraint(Sketcher.Constraint("Horizontal", 0, 2, 5, 2))
sketch14.addConstraint(Sketcher.Constraint("Angle", 0, Q("30 deg")))
sketch14.addConstraint(Sketcher.Constraint("DistanceX", -1, 1, 0, 2, 120.0))
sketch14.addConstraint(Sketcher.Constraint("DistanceY", 1, 2, -1, 1, 75.5))
sketch14.addConstraint(Sketcher.Constraint("DistanceY", 1, 2, 1, 1, 12.51694))
sketch14.addConstraint(Sketcher.Constraint("Distance", 0, 25.037131))
pocket11 = doc.addObject("PartDesign::Pocket", "Pocket010")
body.addObject(pocket11)
pocket11.Profile = sketch14
pocket11.Length = 10
pocket11.Reversed = True
doc.recompute()

fillet3 = doc.addObject("PartDesign::Fillet", "Fillet002")
body.addObject(fillet3)
fillet3.Base = (pocket11, edges_at(pocket11, [
    (98.32, -75.5, 2),
    (120, -62.983, 2),
    (-98.32, -75.5, 2),
    (-120, -62.983, 2),
]))
fillet3.Radius = 5

sketch15 = doc.addObject("Sketcher::SketchObject", "Sketch014")
body.addObject(sketch15)
sketch15.AttachmentSupport = (doc.XY_Plane, [""])
sketch15.MapMode = "FlatFace"
sketch15.addGeometry(Part.LineSegment(App.Vector(62, 50, 0), App.Vector(62, 66, 0)), False)
sketch15.addGeometry(Part.ArcOfCircle(Part.Circle(App.Vector(67, 66, 0), App.Vector(0, 0, 1), 5), math.radians(0), math.radians(180)), False)
sketch15.addGeometry(Part.LineSegment(App.Vector(72, 66, 0), App.Vector(72, 50, 0)), False)
sketch15.addGeometry(Part.ArcOfCircle(Part.Circle(App.Vector(67, 50, 0), App.Vector(0, 0, 1), 5), math.radians(180), math.radians(360)), False)
sketch15.addConstraint(Sketcher.Constraint("Tangent", 0, 2, 1, 2))
sketch15.addConstraint(Sketcher.Constraint("Tangent", 1, 1, 2, 1))
sketch15.addConstraint(Sketcher.Constraint("Tangent", 2, 2, 3, 2))
sketch15.addConstraint(Sketcher.Constraint("Tangent", 3, 1, 0, 1))
sketch15.addConstraint(Sketcher.Constraint("Vertical", 0))
sketch15.addConstraint(Sketcher.Constraint("Vertical", 2))
sketch15.addConstraint(Sketcher.Constraint("Radius", 1, 5.0))
sketch15.addConstraint(Sketcher.Constraint("DistanceY", 0, 1, 0, 2, 15.0))
sketch15.addConstraint(Sketcher.Constraint("DistanceX", -1, 1, 1, 3, 67.0))
sketch15.addConstraint(Sketcher.Constraint("DistanceY", -1, 1, 1, 3, 65.5))
pocket12 = doc.addObject("PartDesign::Pocket", "Pocket011")
body.addObject(pocket12)
pocket12.Profile = sketch15
pocket12.Length = 5
pocket12.Reversed = True

sketch16 = doc.addObject("Sketcher::SketchObject", "Sketch015")
body.addObject(sketch16)
sketch16.AttachmentSupport = (doc.XY_Plane, [""])
sketch16.MapMode = "FlatFace"
add_polygon(sketch16, [(15, -51.5), (15, -55.5), (-15, -55.5), (-15, -51.5)])
add_polygon(sketch16, [(15, -36.5), (15, -40.5), (-14.8, -40.5), (-14.8, -36.5)])
add_polygon(sketch16, [(15, 37.5), (15, 33.5), (-14.8, 33.5), (-14.8, 37.5)])
add_polygon(sketch16, [(14.9, 69.5), (14.9, 65.5), (-14.9, 65.5), (-14.9, 69.5)])
sketch16.addConstraint(Sketcher.Constraint("Vertical", 0))
sketch16.addConstraint(Sketcher.Constraint("Horizontal", 1))
sketch16.addConstraint(Sketcher.Constraint("Vertical", 2))
sketch16.addConstraint(Sketcher.Constraint("Horizontal", 3))
sketch16.addConstraint(Sketcher.Constraint("Vertical", 4))
sketch16.addConstraint(Sketcher.Constraint("Horizontal", 5))
sketch16.addConstraint(Sketcher.Constraint("Vertical", 6))
sketch16.addConstraint(Sketcher.Constraint("Horizontal", 7))
sketch16.addConstraint(Sketcher.Constraint("Vertical", 8))
sketch16.addConstraint(Sketcher.Constraint("Horizontal", 9))
sketch16.addConstraint(Sketcher.Constraint("Vertical", 10))
sketch16.addConstraint(Sketcher.Constraint("Horizontal", 11))
sketch16.addConstraint(Sketcher.Constraint("Vertical", 12))
sketch16.addConstraint(Sketcher.Constraint("Horizontal", 13))
sketch16.addConstraint(Sketcher.Constraint("Vertical", 14))
sketch16.addConstraint(Sketcher.Constraint("Horizontal", 15))
sketch16.addConstraint(Sketcher.Constraint("Vertical", 3, 2, 4, 2))
sketch16.addConstraint(Sketcher.Constraint("Vertical", 7, 2, 8, 2))
sketch16.addConstraint(Sketcher.Constraint("Vertical", 6, 2, 9, 2))
sketch16.addConstraint(Sketcher.Constraint("Equal", 11, 13))
sketch16.addConstraint(Sketcher.Constraint("Equal", 2, 4))
sketch16.addConstraint(Sketcher.Constraint("Equal", 6, 8))
sketch16.addConstraint(Sketcher.Constraint("Equal", 10, 12))
sketch16.addConstraint(Sketcher.Constraint("DistanceX", 1, 2, 1, 1, 30.0))
sketch16.addConstraint(Sketcher.Constraint("DistanceY", 0, 2, 0, 1, 4.0))
sketch16.addConstraint(Sketcher.Constraint("DistanceX", 5, 2, 5, 1, 29.8))
sketch16.addConstraint(Sketcher.Constraint("DistanceX", -1, 1, 0, 2, 15.0))
sketch16.addConstraint(Sketcher.Constraint("DistanceY", 3, 2, 4, 2, 11.0))
sketch16.addConstraint(Sketcher.Constraint("DistanceY", 7, 2, 8, 2, 70.0))
sketch16.addConstraint(Sketcher.Constraint("DistanceY", 11, 2, 12, 2, 28.0))
sketch16.addConstraint(Sketcher.Constraint("DistanceY", 0, 2, -1, 1, 55.5))
sketch16.addConstraint(Sketcher.Constraint("DistanceX", -1, 1, 12, 2, 14.9))
pocket13 = doc.addObject("PartDesign::Pocket", "Pocket012")
body.addObject(pocket13)
pocket13.Profile = sketch16
pocket13.Length = 10
pocket13.Reversed = True

sketch17 = doc.addObject("Sketcher::SketchObject", "Sketch016")
body.addObject(sketch17)
sketch17.AttachmentSupport = (doc.XY_Plane, [""])
sketch17.MapMode = "FlatFace"
sketch17.addGeometry(Part.Circle(App.Vector(-29.4, 35.5, 0), App.Vector(0, 0, 1), 2), False)
sketch17.addGeometry(Part.Circle(App.Vector(29.4, 35.5, 0), App.Vector(0, 0, 1), 2), False)
sketch17.addGeometry(Part.Circle(App.Vector(43.4, 67.5, 0), App.Vector(0, 0, 1), 2), False)
sketch17.addGeometry(Part.Circle(App.Vector(-43.4, 67.5, 0), App.Vector(0, 0, 1), 2), False)
sketch17.addGeometry(Part.Circle(App.Vector(-29.4, -38.5, 0), App.Vector(0, 0, 1), 2), False)
sketch17.addGeometry(Part.Circle(App.Vector(29.4, -38.5, 0), App.Vector(0, 0, 1), 2), False)
sketch17.addGeometry(Part.Circle(App.Vector(-43, -53.5, 0), App.Vector(0, 0, 1), 2), False)
sketch17.addGeometry(Part.Circle(App.Vector(43, -53.5, 0), App.Vector(0, 0, 1), 2), False)
sketch17.addConstraint(Sketcher.Constraint("Equal", 0, 1))
sketch17.addConstraint(Sketcher.Constraint("Equal", 1, 2))
sketch17.addConstraint(Sketcher.Constraint("Equal", 2, 3))
sketch17.addConstraint(Sketcher.Constraint("Equal", 3, 4))
sketch17.addConstraint(Sketcher.Constraint("Equal", 4, 5))
sketch17.addConstraint(Sketcher.Constraint("Equal", 5, 6))
sketch17.addConstraint(Sketcher.Constraint("Equal", 6, 7))
sketch17.addConstraint(Sketcher.Constraint("Symmetric", 0, 3, 1, 3, -2))
sketch17.addConstraint(Sketcher.Constraint("Symmetric", 2, 3, 3, 3, -2))
sketch17.addConstraint(Sketcher.Constraint("Symmetric", 4, 3, 5, 3, -2))
sketch17.addConstraint(Sketcher.Constraint("Symmetric", 6, 3, 7, 3, -2))
sketch17.addConstraint(Sketcher.Constraint("Vertical", 0, 3, 4, 3))
sketch17.addConstraint(Sketcher.Constraint("Diameter", 0, 4.0))
sketch17.addConstraint(Sketcher.Constraint("DistanceX", 6, 3, -1, 1, 43.0))
sketch17.addConstraint(Sketcher.Constraint("DistanceX", 1, 3, 2, 3, 14.0))
sketch17.addConstraint(Sketcher.Constraint("DistanceY", 1, 3, 2, 3, 32.0))
sketch17.addConstraint(Sketcher.Constraint("DistanceY", 4, 3, 0, 3, 74.0))
sketch17.addConstraint(Sketcher.Constraint("DistanceY", 6, 3, 4, 3, 15.0))
sketch17.addConstraint(Sketcher.Constraint("DistanceX", 0, 3, -1, 1, 29.4))
sketch17.addConstraint(Sketcher.Constraint("DistanceY", -1, 1, 0, 3, 35.5))
pocket14 = doc.addObject("PartDesign::Pocket", "Pocket013")
body.addObject(pocket14)
pocket14.Profile = sketch17
pocket14.Length = 10
pocket14.Reversed = True

sketch18 = doc.addObject("Sketcher::SketchObject", "Sketch017")
body.addObject(sketch18)
sketch18.AttachmentSupport = (doc.XY_Plane, [""])
sketch18.MapMode = "FlatFace"
sketch18.addGeometry(Part.Circle(App.Vector(39.8, -73.5, 0), App.Vector(0, 0, 1), 2), False)
sketch18.addGeometry(Part.Circle(App.Vector(-39.8, -73.5, 0), App.Vector(0, 0, 1), 2), False)
sketch18.addConstraint(Sketcher.Constraint("Equal", 0, 1))
sketch18.addConstraint(Sketcher.Constraint("Symmetric", 0, 3, 1, 3, -2))
sketch18.addConstraint(Sketcher.Constraint("Diameter", 0, 3.99))
sketch18.addConstraint(Sketcher.Constraint("DistanceX", -1, 1, 0, 3, 39.8))
sketch18.addConstraint(Sketcher.Constraint("DistanceY", 0, 3, -1, 1, 73.5))
pocket15 = doc.addObject("PartDesign::Pocket", "Pocket014")
body.addObject(pocket15)
pocket15.Profile = sketch18
pocket15.Length = 10
pocket15.Reversed = True

sketch19 = doc.addObject("Sketcher::SketchObject", "Sketch018")
body.addObject(sketch19)
sketch19.AttachmentSupport = (doc.XY_Plane, [""])
sketch19.MapMode = "FlatFace"
sketch19.addGeometry(Part.Circle(App.Vector(39.8, -73.5, 0), App.Vector(0, 0, 1), 4), False)
sketch19.addGeometry(Part.Circle(App.Vector(39.8, -73.5, 0), App.Vector(0, 0, 1), 1.9), False)
sketch19.addGeometry(Part.Circle(App.Vector(-39.8, -73.5, 0), App.Vector(0, 0, 1), 4), False)
sketch19.addGeometry(Part.Circle(App.Vector(-39.8, -73.5, 0), App.Vector(0, 0, 1), 1.9), False)
sketch19.addConstraint(Sketcher.Constraint("Coincident", 1, 3, 0, 3))
sketch19.addConstraint(Sketcher.Constraint("Coincident", 3, 3, 2, 3))
sketch19.addConstraint(Sketcher.Constraint("Equal", 0, 2))
sketch19.addConstraint(Sketcher.Constraint("Symmetric", 0, 3, 2, 3, -2))
sketch19.addConstraint(Sketcher.Constraint("Diameter", 0, 8.0))
sketch19.addConstraint(Sketcher.Constraint("Diameter", 3, 3.9))
sketch19.addConstraint(Sketcher.Constraint("DistanceX", -1, 1, 0, 3, 39.8))
sketch19.addConstraint(Sketcher.Constraint("DistanceY", 0, 3, -1, 1, 73.5))
sketch19.addConstraint(Sketcher.Constraint("Diameter", 1, 3.73622))
pad4 = doc.addObject("PartDesign::Pad", "Pad003")
body.addObject(pad4)
pad4.Profile = sketch19
pad4.Length = 4

sketch20 = doc.addObject("Sketcher::SketchObject", "Sketch019")
body.addObject(sketch20)
sketch20.AttachmentSupport = (doc.XY_Plane, [""])
sketch20.MapMode = "FlatFace"
sketch20.AttachmentOffset = App.Placement(App.Vector(0, 0, 4), App.Rotation())
add_polygon(sketch20, [(-71, 25), (-71, 21), (-51, 21), (-51, 25)])
sketch20.addConstraint(Sketcher.Constraint("Vertical", 0))
sketch20.addConstraint(Sketcher.Constraint("Horizontal", 1))
sketch20.addConstraint(Sketcher.Constraint("Vertical", 2))
sketch20.addConstraint(Sketcher.Constraint("Horizontal", 3))
sketch20.addConstraint(Sketcher.Constraint("DistanceX", 1, 1, 1, 2, 20.0))
sketch20.addConstraint(Sketcher.Constraint("DistanceY", 0, 2, 0, 1, 4.0))
sketch20.addConstraint(Sketcher.Constraint("DistanceX", 0, 2, -1, 1, 71.0))
sketch20.addConstraint(Sketcher.Constraint("DistanceY", -1, 1, 0, 2, 21.0))
pocket16 = doc.addObject("PartDesign::Pocket", "Pocket015")
body.addObject(pocket16)
pocket16.Profile = sketch20
pocket16.Length = 10

sketch21 = doc.addObject("Sketcher::SketchObject", "Sketch020")
body.addObject(sketch21)
sketch21.AttachmentSupport = (doc.XY_Plane, [""])
sketch21.MapMode = "FlatFace"
add_polygon(sketch21, [(36, 63.2), (36, 43.2), (32, 43.2), (32, 63.2)])
add_polygon(sketch21, [(-32, 63.2), (-32, 43.2), (-36, 43.2), (-36, 63.2)])
sketch21.addConstraint(Sketcher.Constraint("Vertical", 0))
sketch21.addConstraint(Sketcher.Constraint("Horizontal", 1))
sketch21.addConstraint(Sketcher.Constraint("Vertical", 2))
sketch21.addConstraint(Sketcher.Constraint("Horizontal", 3))
sketch21.addConstraint(Sketcher.Constraint("Vertical", 4))
sketch21.addConstraint(Sketcher.Constraint("Horizontal", 5))
sketch21.addConstraint(Sketcher.Constraint("Vertical", 6))
sketch21.addConstraint(Sketcher.Constraint("Horizontal", 7))
sketch21.addConstraint(Sketcher.Constraint("Symmetric", 1, 2, 4, 2, -2))
sketch21.addConstraint(Sketcher.Constraint("Symmetric", 3, 2, 6, 2, -2))
sketch21.addConstraint(Sketcher.Constraint("DistanceX", 1, 2, 1, 1, 4.0))
sketch21.addConstraint(Sketcher.Constraint("DistanceY", 0, 2, 0, 1, 20.0))
sketch21.addConstraint(Sketcher.Constraint("DistanceX", -1, 1, 0, 2, 36.0))
sketch21.addConstraint(Sketcher.Constraint("DistanceY", -1, 1, 0, 2, 43.25))
pocket17 = doc.addObject("PartDesign::Pocket", "Pocket016")
body.addObject(pocket17)
pocket17.Profile = sketch21
pocket17.Length = 10
pocket17.Reversed = True

doc.recompute()
